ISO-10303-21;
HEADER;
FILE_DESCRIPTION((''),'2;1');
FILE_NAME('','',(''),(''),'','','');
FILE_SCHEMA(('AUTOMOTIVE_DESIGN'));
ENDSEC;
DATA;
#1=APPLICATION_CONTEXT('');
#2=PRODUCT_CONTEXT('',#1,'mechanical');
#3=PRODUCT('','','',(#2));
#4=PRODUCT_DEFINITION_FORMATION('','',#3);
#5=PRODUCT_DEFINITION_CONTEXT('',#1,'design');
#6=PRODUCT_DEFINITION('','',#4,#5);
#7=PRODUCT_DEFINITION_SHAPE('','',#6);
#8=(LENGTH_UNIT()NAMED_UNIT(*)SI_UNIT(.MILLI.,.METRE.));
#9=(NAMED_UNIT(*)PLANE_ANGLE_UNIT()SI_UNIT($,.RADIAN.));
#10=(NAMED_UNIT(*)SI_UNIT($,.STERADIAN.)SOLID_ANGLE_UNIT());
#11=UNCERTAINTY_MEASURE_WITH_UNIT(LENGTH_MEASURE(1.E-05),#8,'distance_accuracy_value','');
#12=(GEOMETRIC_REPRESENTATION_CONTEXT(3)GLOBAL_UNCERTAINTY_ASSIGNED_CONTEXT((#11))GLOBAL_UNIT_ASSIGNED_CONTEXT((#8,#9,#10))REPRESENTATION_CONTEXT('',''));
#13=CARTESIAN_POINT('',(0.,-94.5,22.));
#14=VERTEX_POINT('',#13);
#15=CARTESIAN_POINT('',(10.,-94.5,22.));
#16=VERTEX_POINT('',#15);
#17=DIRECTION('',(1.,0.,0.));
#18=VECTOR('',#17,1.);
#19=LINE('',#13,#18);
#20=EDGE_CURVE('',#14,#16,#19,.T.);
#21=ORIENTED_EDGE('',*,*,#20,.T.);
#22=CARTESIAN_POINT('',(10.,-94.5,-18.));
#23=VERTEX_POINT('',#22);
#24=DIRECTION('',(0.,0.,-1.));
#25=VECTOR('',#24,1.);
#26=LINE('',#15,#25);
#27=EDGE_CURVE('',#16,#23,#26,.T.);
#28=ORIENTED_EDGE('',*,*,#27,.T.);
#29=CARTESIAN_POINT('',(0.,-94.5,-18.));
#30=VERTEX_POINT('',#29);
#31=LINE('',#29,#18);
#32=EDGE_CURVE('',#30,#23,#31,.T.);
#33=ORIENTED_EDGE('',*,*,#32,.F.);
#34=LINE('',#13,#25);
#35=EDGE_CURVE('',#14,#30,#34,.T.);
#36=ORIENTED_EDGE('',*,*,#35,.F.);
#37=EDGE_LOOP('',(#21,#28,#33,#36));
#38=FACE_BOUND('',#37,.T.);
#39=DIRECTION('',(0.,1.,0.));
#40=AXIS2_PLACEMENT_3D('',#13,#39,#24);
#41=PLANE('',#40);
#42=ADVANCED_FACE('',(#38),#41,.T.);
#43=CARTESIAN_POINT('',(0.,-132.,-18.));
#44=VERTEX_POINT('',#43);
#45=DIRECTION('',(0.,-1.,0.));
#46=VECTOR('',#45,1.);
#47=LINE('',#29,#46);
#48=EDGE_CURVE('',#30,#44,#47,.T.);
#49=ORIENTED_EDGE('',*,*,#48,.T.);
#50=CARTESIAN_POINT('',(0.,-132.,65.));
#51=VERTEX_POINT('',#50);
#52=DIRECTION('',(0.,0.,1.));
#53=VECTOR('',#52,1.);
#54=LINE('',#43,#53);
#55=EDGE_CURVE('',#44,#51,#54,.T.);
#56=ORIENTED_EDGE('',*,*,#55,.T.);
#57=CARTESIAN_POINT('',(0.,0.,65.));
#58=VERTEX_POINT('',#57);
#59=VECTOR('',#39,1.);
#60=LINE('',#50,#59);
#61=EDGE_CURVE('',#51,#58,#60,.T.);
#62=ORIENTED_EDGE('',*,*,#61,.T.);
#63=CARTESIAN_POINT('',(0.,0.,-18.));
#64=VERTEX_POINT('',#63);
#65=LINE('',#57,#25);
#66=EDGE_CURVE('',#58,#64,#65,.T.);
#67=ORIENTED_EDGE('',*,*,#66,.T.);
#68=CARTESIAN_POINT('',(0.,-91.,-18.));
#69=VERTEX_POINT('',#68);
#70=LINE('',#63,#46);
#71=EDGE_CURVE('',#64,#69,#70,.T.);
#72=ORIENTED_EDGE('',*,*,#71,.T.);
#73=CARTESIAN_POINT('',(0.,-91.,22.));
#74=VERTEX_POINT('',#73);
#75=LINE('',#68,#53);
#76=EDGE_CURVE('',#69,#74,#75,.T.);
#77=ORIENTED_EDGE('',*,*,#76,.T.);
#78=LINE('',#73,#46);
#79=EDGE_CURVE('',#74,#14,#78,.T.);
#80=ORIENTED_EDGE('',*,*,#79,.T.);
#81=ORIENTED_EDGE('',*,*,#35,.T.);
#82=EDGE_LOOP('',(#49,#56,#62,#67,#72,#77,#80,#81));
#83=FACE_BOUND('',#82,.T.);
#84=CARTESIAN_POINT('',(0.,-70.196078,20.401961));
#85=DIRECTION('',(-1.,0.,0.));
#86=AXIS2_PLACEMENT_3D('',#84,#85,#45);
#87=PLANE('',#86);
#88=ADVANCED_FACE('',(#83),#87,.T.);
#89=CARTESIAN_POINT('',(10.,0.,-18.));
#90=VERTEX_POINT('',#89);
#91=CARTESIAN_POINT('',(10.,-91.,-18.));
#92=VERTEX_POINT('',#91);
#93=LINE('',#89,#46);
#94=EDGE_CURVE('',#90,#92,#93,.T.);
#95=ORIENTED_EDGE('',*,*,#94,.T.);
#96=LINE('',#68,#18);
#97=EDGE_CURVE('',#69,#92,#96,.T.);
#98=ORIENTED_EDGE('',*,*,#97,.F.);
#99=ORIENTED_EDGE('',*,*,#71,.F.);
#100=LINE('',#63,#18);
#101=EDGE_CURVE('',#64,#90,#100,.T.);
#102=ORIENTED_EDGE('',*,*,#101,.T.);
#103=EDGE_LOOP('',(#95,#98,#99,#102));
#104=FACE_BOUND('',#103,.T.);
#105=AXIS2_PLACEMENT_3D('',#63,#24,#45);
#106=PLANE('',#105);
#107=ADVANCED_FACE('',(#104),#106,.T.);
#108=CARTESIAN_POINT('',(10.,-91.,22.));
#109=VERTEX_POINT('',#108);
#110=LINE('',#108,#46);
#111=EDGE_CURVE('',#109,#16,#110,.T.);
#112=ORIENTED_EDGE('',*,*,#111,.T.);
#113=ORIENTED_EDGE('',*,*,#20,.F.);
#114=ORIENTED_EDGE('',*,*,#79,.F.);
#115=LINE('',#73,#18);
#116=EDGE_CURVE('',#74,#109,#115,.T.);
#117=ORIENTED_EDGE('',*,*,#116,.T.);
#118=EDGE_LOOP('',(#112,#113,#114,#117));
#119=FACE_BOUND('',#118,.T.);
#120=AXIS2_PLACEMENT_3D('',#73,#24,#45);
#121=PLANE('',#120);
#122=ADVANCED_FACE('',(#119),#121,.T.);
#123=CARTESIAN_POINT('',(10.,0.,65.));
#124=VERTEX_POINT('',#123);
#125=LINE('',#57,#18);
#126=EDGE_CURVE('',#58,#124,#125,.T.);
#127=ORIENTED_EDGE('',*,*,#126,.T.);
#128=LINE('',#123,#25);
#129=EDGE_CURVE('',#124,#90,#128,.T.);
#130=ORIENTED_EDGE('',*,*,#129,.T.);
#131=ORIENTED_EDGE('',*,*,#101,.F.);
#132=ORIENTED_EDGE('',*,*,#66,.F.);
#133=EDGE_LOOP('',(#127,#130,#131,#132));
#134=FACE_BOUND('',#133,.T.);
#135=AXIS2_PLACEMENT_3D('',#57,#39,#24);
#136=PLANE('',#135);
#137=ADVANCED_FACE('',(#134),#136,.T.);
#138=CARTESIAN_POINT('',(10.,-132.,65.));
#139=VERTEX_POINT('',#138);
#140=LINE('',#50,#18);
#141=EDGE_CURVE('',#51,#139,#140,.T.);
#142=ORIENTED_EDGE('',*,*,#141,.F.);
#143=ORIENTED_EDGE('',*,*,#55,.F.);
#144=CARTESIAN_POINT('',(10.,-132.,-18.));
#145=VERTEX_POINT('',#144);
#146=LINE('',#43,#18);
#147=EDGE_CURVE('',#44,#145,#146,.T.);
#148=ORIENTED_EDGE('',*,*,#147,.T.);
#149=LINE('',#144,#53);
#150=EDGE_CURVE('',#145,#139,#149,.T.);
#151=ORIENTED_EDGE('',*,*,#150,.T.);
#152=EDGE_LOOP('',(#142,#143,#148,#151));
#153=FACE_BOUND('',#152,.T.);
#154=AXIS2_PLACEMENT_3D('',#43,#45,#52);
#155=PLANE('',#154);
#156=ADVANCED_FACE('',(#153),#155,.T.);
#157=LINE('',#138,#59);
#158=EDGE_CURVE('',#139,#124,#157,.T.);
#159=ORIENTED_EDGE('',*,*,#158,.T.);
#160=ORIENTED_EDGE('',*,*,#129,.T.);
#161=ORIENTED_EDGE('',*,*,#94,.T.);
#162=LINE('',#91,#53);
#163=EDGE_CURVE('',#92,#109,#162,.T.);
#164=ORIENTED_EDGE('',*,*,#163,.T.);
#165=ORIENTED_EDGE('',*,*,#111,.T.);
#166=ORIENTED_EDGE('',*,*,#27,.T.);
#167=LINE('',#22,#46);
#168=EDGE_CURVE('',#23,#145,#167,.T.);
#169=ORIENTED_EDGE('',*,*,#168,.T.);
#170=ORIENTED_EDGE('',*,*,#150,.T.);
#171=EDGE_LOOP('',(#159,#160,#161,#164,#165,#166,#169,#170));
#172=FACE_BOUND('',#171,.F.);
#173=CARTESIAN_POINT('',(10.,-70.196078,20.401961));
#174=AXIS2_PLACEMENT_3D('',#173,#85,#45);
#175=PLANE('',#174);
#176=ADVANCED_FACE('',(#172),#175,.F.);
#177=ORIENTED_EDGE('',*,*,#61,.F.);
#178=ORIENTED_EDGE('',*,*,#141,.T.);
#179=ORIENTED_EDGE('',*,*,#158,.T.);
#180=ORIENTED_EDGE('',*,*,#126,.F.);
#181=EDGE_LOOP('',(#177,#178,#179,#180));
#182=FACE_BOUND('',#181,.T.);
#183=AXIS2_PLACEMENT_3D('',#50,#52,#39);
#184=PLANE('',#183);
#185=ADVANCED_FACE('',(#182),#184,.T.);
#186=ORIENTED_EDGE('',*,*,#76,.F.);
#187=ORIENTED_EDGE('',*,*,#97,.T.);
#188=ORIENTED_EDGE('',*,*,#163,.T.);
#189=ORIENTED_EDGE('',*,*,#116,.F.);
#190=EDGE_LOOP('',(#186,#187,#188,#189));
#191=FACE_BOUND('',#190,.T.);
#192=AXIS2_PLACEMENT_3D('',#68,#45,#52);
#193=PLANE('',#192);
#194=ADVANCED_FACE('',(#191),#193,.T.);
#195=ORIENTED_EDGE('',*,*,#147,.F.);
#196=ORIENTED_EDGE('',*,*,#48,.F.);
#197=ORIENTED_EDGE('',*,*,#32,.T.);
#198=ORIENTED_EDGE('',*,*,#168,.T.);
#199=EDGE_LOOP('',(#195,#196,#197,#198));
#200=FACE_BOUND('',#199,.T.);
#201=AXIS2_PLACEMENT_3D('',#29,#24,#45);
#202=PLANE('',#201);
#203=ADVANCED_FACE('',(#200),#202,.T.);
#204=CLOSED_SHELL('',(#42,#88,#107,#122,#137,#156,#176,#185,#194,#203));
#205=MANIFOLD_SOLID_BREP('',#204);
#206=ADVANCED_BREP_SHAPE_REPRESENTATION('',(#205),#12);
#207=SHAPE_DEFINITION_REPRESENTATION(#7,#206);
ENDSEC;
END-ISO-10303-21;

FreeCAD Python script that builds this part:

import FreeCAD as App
import Part
import Sketcher
Q = App.Units.Quantity

doc = App.newDocument("Part")
body = doc.addObject("PartDesign::Body", "Body")

sketch1 = doc.addObject("Sketcher::SketchObject", "Sketch")
body.addObject(sketch1)
sketch1.AttachmentSupport = (doc.YZ_Plane, [""])
sketch1.MapMode = "FlatFace"
sketch1.addGeometry(Part.LineSegment(App.Vector(-132, 65, 0), App.Vector(-132, -18, 0)), False)
sketch1.addGeometry(Part.LineSegment(App.Vector(-132, -18, 0), App.Vector(-94.5, -18, 0)), False)
sketch1.addGeometry(Part.LineSegment(App.Vector(-94.5, -18, 0), App.Vector(-94.5, 22, 0)), False)
sketch1.addGeometry(Part.LineSegment(App.Vector(-94.5, 22, 0), App.Vector(-91, 22, 0)), False)
sketch1.addGeometry(Part.LineSegment(App.Vector(-91, 22, 0), App.Vector(-91, -18, 0)), False)
sketch1.addGeometry(Part.LineSegment(App.Vector(-91, -18, 0), App.Vector(0, -18, 0)), False)
sketch1.addGeometry(Part.LineSegment(App.Vector(0, -18, 0), App.Vector(0, 65, 0)), False)
sketch1.addGeometry(Part.LineSegment(App.Vector(0, 65, 0), App.Vector(-132, 65, 0)), False)
sketch1.addConstraint(Sketcher.Constraint("Coincident", 0, 2, 1, 1))
sketch1.addConstraint(Sketcher.Constraint("Coincident", 1, 2, 2, 1))
sketch1.addConstraint(Sketcher.Constraint("Coincident", 2, 2, 3, 1))
sketch1.addConstraint(Sketcher.Constraint("Coincident", 3, 2, 4, 1))
sketch1.addConstraint(Sketcher.Constraint("Coincident", 4, 2, 5, 1))
sketch1.addConstraint(Sketcher.Constraint("Coincident", 5, 2, 6, 1))
sketch1.addConstraint(Sketcher.Constraint("Coincident", 6, 2, 7, 1))
sketch1.addConstraint(Sketcher.Constraint("Coincident", 7, 2, 0, 1))
sketch1.addConstraint(Sketcher.Constraint("Vertical", 0))
sketch1.addConstraint(Sketcher.Constraint("Horizontal", 1))
sketch1.addConstraint(Sketcher.Constraint("Vertical", 2))
sketch1.addConstraint(Sketcher.Constraint("Horizontal", 3))
sketch1.addConstraint(Sketcher.Constraint("Vertical", 4))
sketch1.addConstraint(Sketcher.Constraint("Horizontal", 5))
sketch1.addConstraint(Sketcher.Constraint("Vertical", 6))
sketch1.addConstraint(Sketcher.Constraint("Horizontal", 7))
sketch1.addConstraint(Sketcher.Constraint("PointOnObject", 5, 2, -2))
sketch1.addConstraint(Sketcher.Constraint("Horizontal", 1, 2, 4, 2))
sketch1.addConstraint(Sketcher.Constraint("DistanceX", 5, 1, 5, 2, Q("91 mm")))
sketch1.addConstraint(Sketcher.Constraint("DistanceX", 7, 2, 7, 1, Q("132 mm")))
sketch1.addConstraint(Sketcher.Constraint("DistanceY", 0, 2, 0, 1, Q("83 mm")))
sketch1.addConstraint(Sketcher.Constraint("DistanceY", 2, 1, 2, 2, Q("40 mm")))
sketch1.addConstraint(Sketcher.Constraint("DistanceX", 1, 1, 1, 2, Q("37.5 mm")))
sketch1.addConstraint(Sketcher.Constraint("DistanceY", 0, 2, -1, 1, Q("18 mm")))
pad1 = doc.addObject("PartDesign::Pad", "Pad")
body.addObject(pad1)
pad1.Profile = sketch1
pad1.Length = 10

doc.recompute()
